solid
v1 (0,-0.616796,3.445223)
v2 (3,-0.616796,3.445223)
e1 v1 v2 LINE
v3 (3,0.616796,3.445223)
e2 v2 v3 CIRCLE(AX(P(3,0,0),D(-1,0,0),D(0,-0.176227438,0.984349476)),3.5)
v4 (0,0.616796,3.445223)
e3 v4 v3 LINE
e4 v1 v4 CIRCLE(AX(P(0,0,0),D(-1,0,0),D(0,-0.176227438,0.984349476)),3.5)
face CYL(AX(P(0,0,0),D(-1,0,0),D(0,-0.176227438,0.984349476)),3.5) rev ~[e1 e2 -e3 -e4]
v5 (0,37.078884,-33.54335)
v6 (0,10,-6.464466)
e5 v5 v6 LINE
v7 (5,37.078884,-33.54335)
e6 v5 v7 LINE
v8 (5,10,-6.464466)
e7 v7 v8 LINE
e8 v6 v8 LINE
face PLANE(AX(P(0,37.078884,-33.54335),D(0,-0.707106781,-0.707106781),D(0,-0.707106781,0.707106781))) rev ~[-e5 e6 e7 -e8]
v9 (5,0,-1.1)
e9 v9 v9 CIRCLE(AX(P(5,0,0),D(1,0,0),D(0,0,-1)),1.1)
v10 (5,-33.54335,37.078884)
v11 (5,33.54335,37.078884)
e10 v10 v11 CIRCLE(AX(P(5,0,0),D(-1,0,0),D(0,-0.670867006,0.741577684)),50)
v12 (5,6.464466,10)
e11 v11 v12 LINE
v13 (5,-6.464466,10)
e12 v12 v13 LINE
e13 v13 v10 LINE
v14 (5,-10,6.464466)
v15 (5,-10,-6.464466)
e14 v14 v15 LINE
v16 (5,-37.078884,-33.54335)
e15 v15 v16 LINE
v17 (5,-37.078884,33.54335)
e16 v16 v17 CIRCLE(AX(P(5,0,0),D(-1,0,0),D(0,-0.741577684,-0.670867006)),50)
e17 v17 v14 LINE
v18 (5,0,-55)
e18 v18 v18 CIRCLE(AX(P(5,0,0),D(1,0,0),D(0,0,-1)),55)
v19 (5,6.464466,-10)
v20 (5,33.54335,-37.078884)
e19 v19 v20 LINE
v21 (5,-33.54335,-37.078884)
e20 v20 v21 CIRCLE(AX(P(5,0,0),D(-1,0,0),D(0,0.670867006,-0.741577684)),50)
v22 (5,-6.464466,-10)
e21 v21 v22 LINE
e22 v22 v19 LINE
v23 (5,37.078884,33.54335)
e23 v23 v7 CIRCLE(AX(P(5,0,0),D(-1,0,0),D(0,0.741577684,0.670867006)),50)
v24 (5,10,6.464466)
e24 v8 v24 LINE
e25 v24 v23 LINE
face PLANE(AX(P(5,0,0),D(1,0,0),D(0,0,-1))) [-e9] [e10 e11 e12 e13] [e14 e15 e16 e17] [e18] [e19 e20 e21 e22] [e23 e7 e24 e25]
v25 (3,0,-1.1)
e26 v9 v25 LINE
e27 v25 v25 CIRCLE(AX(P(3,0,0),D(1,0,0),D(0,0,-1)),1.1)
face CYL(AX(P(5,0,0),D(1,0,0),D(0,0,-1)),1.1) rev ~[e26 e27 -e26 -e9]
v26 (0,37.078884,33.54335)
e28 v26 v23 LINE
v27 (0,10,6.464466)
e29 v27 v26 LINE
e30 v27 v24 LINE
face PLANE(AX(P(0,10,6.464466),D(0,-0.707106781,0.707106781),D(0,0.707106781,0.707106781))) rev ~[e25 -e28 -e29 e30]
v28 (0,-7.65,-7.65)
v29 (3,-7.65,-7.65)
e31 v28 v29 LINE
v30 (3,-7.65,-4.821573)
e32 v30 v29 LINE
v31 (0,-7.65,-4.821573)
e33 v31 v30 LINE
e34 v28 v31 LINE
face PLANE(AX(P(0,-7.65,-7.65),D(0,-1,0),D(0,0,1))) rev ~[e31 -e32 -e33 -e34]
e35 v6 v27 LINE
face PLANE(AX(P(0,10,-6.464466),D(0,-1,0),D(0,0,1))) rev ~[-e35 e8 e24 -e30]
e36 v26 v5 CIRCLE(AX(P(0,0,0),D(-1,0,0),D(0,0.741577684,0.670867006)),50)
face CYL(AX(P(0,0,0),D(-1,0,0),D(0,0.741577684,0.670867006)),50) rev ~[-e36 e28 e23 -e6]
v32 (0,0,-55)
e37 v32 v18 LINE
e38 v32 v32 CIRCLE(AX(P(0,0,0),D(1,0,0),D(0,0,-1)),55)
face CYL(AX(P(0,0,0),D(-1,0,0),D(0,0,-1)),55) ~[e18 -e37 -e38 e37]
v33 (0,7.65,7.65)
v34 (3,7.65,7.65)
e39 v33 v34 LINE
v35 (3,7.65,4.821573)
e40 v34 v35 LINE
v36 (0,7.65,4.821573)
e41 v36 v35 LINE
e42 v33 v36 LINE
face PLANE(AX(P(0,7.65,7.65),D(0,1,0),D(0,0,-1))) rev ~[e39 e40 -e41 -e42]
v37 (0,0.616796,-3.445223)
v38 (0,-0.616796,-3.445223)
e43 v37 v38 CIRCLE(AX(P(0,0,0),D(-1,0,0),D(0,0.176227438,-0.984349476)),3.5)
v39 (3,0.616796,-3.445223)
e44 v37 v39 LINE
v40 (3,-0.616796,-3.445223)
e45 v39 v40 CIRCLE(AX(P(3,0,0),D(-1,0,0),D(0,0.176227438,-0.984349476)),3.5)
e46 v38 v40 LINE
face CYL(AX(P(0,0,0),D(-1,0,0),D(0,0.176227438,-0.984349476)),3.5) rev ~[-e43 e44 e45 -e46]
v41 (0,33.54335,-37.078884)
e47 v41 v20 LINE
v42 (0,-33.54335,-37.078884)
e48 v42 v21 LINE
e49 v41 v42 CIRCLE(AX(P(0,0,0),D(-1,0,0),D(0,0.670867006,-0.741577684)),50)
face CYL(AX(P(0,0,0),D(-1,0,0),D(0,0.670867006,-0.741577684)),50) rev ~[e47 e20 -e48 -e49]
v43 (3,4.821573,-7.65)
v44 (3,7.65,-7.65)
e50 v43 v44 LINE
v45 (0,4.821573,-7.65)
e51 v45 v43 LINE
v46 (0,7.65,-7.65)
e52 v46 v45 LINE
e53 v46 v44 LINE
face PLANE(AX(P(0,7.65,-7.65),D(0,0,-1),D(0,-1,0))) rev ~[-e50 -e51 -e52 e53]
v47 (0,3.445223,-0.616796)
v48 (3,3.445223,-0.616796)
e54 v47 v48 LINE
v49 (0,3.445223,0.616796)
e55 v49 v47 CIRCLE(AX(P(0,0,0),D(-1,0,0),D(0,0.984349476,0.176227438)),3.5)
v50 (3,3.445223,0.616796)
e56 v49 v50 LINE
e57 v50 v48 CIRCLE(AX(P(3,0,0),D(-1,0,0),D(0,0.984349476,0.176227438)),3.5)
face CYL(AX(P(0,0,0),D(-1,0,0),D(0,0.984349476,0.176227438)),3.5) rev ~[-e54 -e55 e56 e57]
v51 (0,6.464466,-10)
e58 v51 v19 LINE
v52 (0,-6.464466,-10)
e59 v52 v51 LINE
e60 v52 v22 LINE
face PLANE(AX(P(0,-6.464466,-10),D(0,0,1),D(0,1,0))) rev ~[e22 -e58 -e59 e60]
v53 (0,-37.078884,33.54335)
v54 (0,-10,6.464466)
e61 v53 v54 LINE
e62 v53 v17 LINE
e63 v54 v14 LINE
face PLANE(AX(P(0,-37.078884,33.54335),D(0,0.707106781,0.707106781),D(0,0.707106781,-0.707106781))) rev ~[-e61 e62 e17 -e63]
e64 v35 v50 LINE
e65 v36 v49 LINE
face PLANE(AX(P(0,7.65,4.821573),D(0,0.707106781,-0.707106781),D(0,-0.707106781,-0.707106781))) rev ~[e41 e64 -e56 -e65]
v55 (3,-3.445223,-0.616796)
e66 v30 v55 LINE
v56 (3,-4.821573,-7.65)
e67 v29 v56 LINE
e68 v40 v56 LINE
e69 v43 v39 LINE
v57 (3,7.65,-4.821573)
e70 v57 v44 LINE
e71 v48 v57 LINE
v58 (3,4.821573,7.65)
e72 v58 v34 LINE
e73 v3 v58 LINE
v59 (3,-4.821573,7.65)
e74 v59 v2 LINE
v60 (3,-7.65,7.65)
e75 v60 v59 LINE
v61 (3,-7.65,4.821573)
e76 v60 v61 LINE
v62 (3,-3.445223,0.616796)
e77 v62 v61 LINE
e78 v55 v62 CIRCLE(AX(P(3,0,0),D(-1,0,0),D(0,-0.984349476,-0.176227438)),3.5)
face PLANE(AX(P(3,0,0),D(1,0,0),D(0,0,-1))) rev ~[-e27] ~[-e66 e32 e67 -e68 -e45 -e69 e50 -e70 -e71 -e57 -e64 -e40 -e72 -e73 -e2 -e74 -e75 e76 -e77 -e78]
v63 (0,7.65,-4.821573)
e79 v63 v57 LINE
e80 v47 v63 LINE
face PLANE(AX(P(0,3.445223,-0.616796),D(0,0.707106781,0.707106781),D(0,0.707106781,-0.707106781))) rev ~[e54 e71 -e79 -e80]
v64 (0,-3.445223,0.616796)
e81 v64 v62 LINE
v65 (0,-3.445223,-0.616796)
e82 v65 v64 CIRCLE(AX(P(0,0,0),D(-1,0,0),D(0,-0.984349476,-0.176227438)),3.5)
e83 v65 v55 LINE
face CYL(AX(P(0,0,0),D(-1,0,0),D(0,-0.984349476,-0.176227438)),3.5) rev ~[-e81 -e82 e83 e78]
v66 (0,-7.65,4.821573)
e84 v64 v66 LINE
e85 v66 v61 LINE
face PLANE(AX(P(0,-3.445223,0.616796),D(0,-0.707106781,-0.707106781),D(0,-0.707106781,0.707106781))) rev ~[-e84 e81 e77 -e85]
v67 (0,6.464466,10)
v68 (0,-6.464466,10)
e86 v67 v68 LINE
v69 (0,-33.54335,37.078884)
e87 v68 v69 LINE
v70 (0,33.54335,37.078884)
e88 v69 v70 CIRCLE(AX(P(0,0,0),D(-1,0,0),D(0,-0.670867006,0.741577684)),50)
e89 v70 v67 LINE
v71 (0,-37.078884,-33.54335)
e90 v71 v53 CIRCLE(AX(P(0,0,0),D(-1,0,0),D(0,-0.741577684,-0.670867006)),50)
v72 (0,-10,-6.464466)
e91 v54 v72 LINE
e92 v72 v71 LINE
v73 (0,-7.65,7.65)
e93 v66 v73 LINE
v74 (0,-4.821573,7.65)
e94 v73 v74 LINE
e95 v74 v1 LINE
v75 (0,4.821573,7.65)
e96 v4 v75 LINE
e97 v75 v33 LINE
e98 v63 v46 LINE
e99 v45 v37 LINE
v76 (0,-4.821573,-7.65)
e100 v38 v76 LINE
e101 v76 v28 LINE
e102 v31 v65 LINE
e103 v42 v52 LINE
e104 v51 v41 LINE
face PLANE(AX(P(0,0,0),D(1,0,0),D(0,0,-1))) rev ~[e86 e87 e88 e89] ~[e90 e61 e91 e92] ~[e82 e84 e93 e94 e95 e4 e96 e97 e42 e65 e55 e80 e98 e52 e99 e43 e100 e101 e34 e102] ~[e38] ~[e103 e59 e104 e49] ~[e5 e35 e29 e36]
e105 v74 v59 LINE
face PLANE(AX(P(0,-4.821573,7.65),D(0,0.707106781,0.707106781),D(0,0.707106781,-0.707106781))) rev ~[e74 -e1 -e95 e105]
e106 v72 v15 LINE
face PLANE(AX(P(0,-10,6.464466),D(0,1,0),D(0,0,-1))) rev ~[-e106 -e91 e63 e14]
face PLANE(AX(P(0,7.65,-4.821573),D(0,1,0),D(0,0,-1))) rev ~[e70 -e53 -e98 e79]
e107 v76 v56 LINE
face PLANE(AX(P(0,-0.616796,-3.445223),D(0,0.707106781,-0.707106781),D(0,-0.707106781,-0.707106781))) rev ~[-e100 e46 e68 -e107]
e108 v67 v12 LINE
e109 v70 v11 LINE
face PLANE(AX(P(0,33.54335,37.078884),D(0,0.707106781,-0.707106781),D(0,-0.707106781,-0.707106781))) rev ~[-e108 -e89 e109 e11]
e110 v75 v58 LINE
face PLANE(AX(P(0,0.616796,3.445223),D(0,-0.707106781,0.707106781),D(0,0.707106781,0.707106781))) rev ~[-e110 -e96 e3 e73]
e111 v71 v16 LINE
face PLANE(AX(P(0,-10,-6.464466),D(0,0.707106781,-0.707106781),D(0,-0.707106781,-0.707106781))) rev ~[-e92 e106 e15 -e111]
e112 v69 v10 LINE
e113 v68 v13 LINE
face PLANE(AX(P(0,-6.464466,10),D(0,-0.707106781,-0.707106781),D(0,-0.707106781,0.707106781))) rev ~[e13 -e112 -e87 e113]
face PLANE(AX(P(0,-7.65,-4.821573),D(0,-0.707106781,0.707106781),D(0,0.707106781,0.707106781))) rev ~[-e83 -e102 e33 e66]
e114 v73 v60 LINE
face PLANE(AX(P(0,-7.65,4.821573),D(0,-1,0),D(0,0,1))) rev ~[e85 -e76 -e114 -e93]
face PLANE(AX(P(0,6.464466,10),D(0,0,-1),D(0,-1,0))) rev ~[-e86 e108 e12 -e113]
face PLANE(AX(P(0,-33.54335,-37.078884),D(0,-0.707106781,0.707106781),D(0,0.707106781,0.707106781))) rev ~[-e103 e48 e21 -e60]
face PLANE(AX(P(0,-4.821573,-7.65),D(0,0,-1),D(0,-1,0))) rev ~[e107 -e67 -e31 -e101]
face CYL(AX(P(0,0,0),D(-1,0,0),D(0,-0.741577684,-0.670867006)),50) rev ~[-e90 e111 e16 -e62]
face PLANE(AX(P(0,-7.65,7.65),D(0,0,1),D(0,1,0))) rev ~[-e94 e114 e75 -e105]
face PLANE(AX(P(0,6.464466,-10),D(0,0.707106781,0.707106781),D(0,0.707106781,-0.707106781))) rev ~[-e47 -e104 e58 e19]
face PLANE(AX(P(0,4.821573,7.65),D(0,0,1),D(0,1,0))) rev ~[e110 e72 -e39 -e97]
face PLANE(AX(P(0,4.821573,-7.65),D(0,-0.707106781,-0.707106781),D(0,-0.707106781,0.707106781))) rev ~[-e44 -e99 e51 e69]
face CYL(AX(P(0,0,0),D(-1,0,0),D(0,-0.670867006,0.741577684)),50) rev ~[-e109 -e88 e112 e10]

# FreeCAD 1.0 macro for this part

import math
import FreeCAD as App
import Part
import Sketcher

V = App.Vector


def add_polygon(sketch, points):
    """Adds a closed chain of lines whose ends are joined by coincident constraints."""
    first, n = sketch.GeometryCount, len(points)
    for a, b in zip(points, points[1:] + points[:1]):
        sketch.addGeometry(Part.LineSegment(App.Vector(*a, 0), App.Vector(*b, 0)), False)
    for i in range(n):
        sketch.addConstraint(Sketcher.Constraint("Coincident", first + i, 2, first + (i + 1) % n, 1))

doc = App.newDocument("Part")
body = doc.addObject("PartDesign::Body", "Body")

# Sketch on YZ plane
sketch1 = body.newObject("Sketcher::SketchObject", "Sketch")
sketch1.AttachmentSupport = (doc.getObject("YZ_Plane"), [""])
sketch1.MapMode = "FlatFace"
sketch1.addGeometry([
    Part.Circle(V(0, 0, 0), V(0, 0, 1), 55),  # 0
    Part.ArcOfCircle(Part.Circle(V(0, 0, 0), V(0, 0, 1), 50), math.radians(48), math.radians(132)),  # 1
    Part.LineSegment(V(33.5, 37.1, 0), V(6.5, 10, 0)),  # 2
    Part.LineSegment(V(6.5, 10, 0), V(-6.5, 10, 0)),  # 3
    Part.LineSegment(V(-6.5, 10, 0), V(-33.5, 37.1, 0)),  # 4
    Part.ArcOfCircle(Part.Circle(V(0, 0, 0), V(0, 0, 1), 50), math.radians(138), math.radians(222)),  # 5
    Part.LineSegment(V(-37.1, 33.5, 0), V(-10, 6.5, 0)),  # 6
    Part.LineSegment(V(-10, 6.5, 0), V(-10, -6.5, 0)),  # 7
    Part.LineSegment(V(-10, -6.5, 0), V(-37.1, -33.5, 0)),  # 8
    Part.ArcOfCircle(Part.Circle(V(0, 0, 0), V(0, 0, 1), 3.5), math.radians(170), math.radians(190)),  # 9
    Part.LineSegment(V(-3.4, 0.6, 0), V(-7.7, 4.8, 0)),  # 10
    Part.LineSegment(V(-7.7, 4.8, 0), V(-7.7, 7.7, 0)),  # 11
    Part.LineSegment(V(-7.7, 7.7, 0), V(-4.8, 7.7, 0)),  # 12
    Part.LineSegment(V(-4.8, 7.7, 0), V(-0.6, 3.4, 0)),  # 13
    Part.ArcOfCircle(Part.Circle(V(0, 0, 0), V(0, 0, 1), 3.5), math.radians(80), math.radians(100)),  # 14
    Part.LineSegment(V(0.6, 3.4, 0), V(4.8, 7.7, 0)),  # 15
    Part.LineSegment(V(4.8, 7.7, 0), V(7.7, 7.7, 0)),  # 16
    Part.LineSegment(V(7.7, 7.7, 0), V(7.7, 4.8, 0)),  # 17
    Part.LineSegment(V(7.7, 4.8, 0), V(3.4, 0.6, 0)),  # 18
    Part.ArcOfCircle(Part.Circle(V(0, 0, 0), V(0, 0, 1), 3.5), math.radians(-10), math.radians(10)),  # 19
    Part.LineSegment(V(3.4, -0.6, 0), V(7.7, -4.8, 0)),  # 20
    Part.LineSegment(V(7.7, -4.8, 0), V(7.7, -7.7, 0)),  # 21
    Part.LineSegment(V(7.7, -7.7, 0), V(4.8, -7.7, 0)),  # 22
    Part.LineSegment(V(4.8, -7.7, 0), V(0.6, -3.4, 0)),  # 23
    Part.ArcOfCircle(Part.Circle(V(0, 0, 0), V(0, 0, 1), 3.5), math.radians(-100), math.radians(-80)),  # 24
    Part.LineSegment(V(-0.6, -3.4, 0), V(-4.8, -7.7, 0)),  # 25
    Part.LineSegment(V(-4.8, -7.7, 0), V(-7.7, -7.7, 0)),  # 26
    Part.LineSegment(V(-7.7, -7.7, 0), V(-7.7, -4.8, 0)),  # 27
    Part.LineSegment(V(-7.7, -4.8, 0), V(-3.4, -0.6, 0)),  # 28
    Part.LineSegment(V(-33.5, -37.1, 0), V(-6.5, -10, 0)),  # 29
    Part.LineSegment(V(-6.5, -10, 0), V(6.5, -10, 0)),  # 30
    Part.LineSegment(V(6.5, -10, 0), V(33.5, -37.1, 0)),  # 31
    Part.ArcOfCircle(Part.Circle(V(0, 0, 0), V(0, 0, 1), 50), math.radians(-132), math.radians(-48)),  # 32
    Part.LineSegment(V(37.1, -33.5, 0), V(10, -6.5, 0)),  # 33
    Part.LineSegment(V(10, -6.5, 0), V(10, 6.5, 0)),  # 34
    Part.LineSegment(V(10, 6.5, 0), V(37.1, 33.5, 0)),  # 35
    Part.ArcOfCircle(Part.Circle(V(0, 0, 0), V(0, 0, 1), 50), math.radians(-42), math.radians(42)),  # 36
], False)
sketch1.addConstraint([
    Sketcher.Constraint("Coincident", 1, 1, 2, 1),
    Sketcher.Constraint("Coincident", 2, 2, 3, 1),
    Sketcher.Constraint("Coincident", 3, 2, 4, 1),
    Sketcher.Constraint("Coincident", 4, 2, 1, 2),
    Sketcher.Constraint("Coincident", 5, 1, 6, 1),
    Sketcher.Constraint("Coincident", 6, 2, 7, 1),
    Sketcher.Constraint("Coincident", 7, 2, 8, 1),
    Sketcher.Constraint("Coincident", 8, 2, 5, 2),
    Sketcher.Constraint("Coincident", 9, 1, 10, 1),
    Sketcher.Constraint("Coincident", 10, 2, 11, 1),
    Sketcher.Constraint("Coincident", 11, 2, 12, 1),
    Sketcher.Constraint("Coincident", 12, 2, 13, 1),
    Sketcher.Constraint("Coincident", 13, 2, 14, 2),
    Sketcher.Constraint("Coincident", 14, 1, 15, 1),
    Sketcher.Constraint("Coincident", 15, 2, 16, 1),
    Sketcher.Constraint("Coincident", 16, 2, 17, 1),
    Sketcher.Constraint("Coincident", 17, 2, 18, 1),
    Sketcher.Constraint("Coincident", 18, 2, 19, 2),
    Sketcher.Constraint("Coincident", 19, 1, 20, 1),
    Sketcher.Constraint("Coincident", 20, 2, 21, 1),
    Sketcher.Constraint("Coincident", 21, 2, 22, 1),
    Sketcher.Constraint("Coincident", 22, 2, 23, 1),
    Sketcher.Constraint("Coincident", 23, 2, 24, 2),
    Sketcher.Constraint("Coincident", 24, 1, 25, 1),
    Sketcher.Constraint("Coincident", 25, 2, 26, 1),
    Sketcher.Constraint("Coincident", 26, 2, 27, 1),
    Sketcher.Constraint("Coincident", 27, 2, 28, 1),
    Sketcher.Constraint("Coincident", 28, 2, 9, 2),
    Sketcher.Constraint("Coincident", 29, 2, 30, 1),
    Sketcher.Constraint("Coincident", 30, 2, 31, 1),
    Sketcher.Constraint("Coincident", 31, 2, 32, 2),
    Sketcher.Constraint("Coincident", 32, 1, 29, 1),
    Sketcher.Constraint("Coincident", 33, 2, 34, 1),
    Sketcher.Constraint("Coincident", 34, 2, 35, 1),
    Sketcher.Constraint("Coincident", 35, 2, 36, 2),
    Sketcher.Constraint("Coincident", 36, 1, 33, 1),
    Sketcher.Constraint("Horizontal", 3),
    Sketcher.Constraint("Vertical", 7),
    Sketcher.Constraint("Vertical", 11),
    Sketcher.Constraint("Horizontal", 12),
    Sketcher.Constraint("Horizontal", 16),
    Sketcher.Constraint("Vertical", 17),
    Sketcher.Constraint("Vertical", 21),
    Sketcher.Constraint("Horizontal", 22),
    Sketcher.Constraint("Horizontal", 26),
    Sketcher.Constraint("Vertical", 27),
    Sketcher.Constraint("Horizontal", 30),
    Sketcher.Constraint("Vertical", 34),
    Sketcher.Constraint("Coincident", 0, 3, -1, 1),
    Sketcher.Constraint("Coincident", 1, 3, -1, 1),
    Sketcher.Constraint("Coincident", 5, 3, -1, 1),
    Sketcher.Constraint("Coincident", 9, 3, -1, 1),
    Sketcher.Constraint("Coincident", 14, 3, -1, 1),
    Sketcher.Constraint("Coincident", 19, 3, -1, 1),
    Sketcher.Constraint("Coincident", 24, 3, -1, 1),
    Sketcher.Constraint("Coincident", 32, 3, -1, 1),
    Sketcher.Constraint("Coincident", 36, 3, -1, 1),
    Sketcher.Constraint("Equal", 1, 5),
    Sketcher.Constraint("Equal", 9, 14),
    Sketcher.Constraint("Equal", 14, 19),
    Sketcher.Constraint("Equal", 19, 24),
    Sketcher.Constraint("Equal", 5, 32),
    Sketcher.Constraint("Equal", 32, 36),
    Sketcher.Constraint("Symmetric", 10, 2, 20, 2, -1, 1),
    Sketcher.Constraint("Symmetric", 12, 2, 22, 2, -1, 1),
    Sketcher.Constraint("Symmetric", 15, 2, 25, 2, -1, 1),
    Sketcher.Constraint("Symmetric", 17, 2, 27, 2, -1, 1),
    Sketcher.Constraint("Symmetric", 2, 2, 29, 2, -1, 1),
    Sketcher.Constraint("Symmetric", 6, 2, 33, 2, -1, 1),
    Sketcher.Constraint("Symmetric", 12, 2, 15, 2, -2),
    Sketcher.Constraint("Symmetric", 10, 2, 17, 2, -2),
    Sketcher.Constraint("Perpendicular", 2, 4),
    Sketcher.Constraint("Parallel", 4, 6),
    Sketcher.Constraint("Perpendicular", 6, 8),
    Sketcher.Constraint("Perpendicular", 8, 10),
    Sketcher.Constraint("Parallel", 10, 13),
    Sketcher.Constraint("Perpendicular", 13, 15),
    Sketcher.Constraint("Parallel", 15, 18),
    Sketcher.Constraint("Perpendicular", 18, 20),
    Sketcher.Constraint("Parallel", 20, 23),
    Sketcher.Constraint("Perpendicular", 23, 25),
    Sketcher.Constraint("Parallel", 25, 28),
    Sketcher.Constraint("Parallel", 28, 29),
    Sketcher.Constraint("Perpendicular", 29, 31),
    Sketcher.Constraint("Parallel", 31, 33),
    Sketcher.Constraint("Perpendicular", 33, 35),
    Sketcher.Constraint("Horizontal", 1, 1, 4, 2),
    Sketcher.Constraint("Horizontal", 13, 2, 14, 1),
    Sketcher.Constraint("Horizontal", 31, 2, 32, 1),
    Sketcher.Constraint("Horizontal", 7, 2, 33, 2),
    Sketcher.Constraint("Horizontal", 6, 2, 34, 2),
    Sketcher.Constraint("Equal", 30, 7),
    Sketcher.Constraint("Equal", 26, 11),
    Sketcher.Constraint("Equal", 4, 6),
    Sketcher.Constraint("Equal", 10, 13),
    Sketcher.Constraint("Diameter", 0, 110.0),
    Sketcher.Constraint("Radius", 1, 50.0),
    Sketcher.Constraint("Radius", 9, 3.5),
    Sketcher.Constraint("DistanceY", -1, 1, 2, 2, 10.0),
    Sketcher.Constraint("DistanceX", 10, 2, -1, 1, 7.65),
    Sketcher.Constraint("DistanceX", 3, 2, 3, 1, 12.928932),
    Sketcher.Constraint("DistanceX", 12, 1, 12, 2, 2.828427),
])
pad1 = body.newObject("PartDesign::Pad", "Pad")
pad1.Profile = sketch1
pad1.Length = 5

# Sketch on YZ plane
sketch2 = body.newObject("Sketcher::SketchObject", "Sketch001")
sketch2.AttachmentSupport = (doc.getObject("YZ_Plane"), [""])
sketch2.MapMode = "FlatFace"
sketch2.AttachmentOffset = App.Placement(V(0, 0, 5), App.Rotation())
add_polygon(sketch2, [(7.7, 7.7), (-7.7, 7.7), (-7.7, -7.7), (7.7, -7.7)])  # lines 0-3
sketch2.addGeometry(Part.Circle(V(0, 0, 0), V(0, 0, 1), 1.1), False)  # 4
sketch2.addConstraint([
    Sketcher.Constraint("Horizontal", 0),
    Sketcher.Constraint("Vertical", 1),
    Sketcher.Constraint("Horizontal", 2),
    Sketcher.Constraint("Vertical", 3),
    Sketcher.Constraint("Coincident", 4, 3, -1, 1),
    Sketcher.Constraint("Symmetric", 0, 2, 2, 2, -1, 1),
    Sketcher.Constraint("Equal", 2, 1),
    Sketcher.Constraint("Diameter", 4, 2.2),
    Sketcher.Constraint("DistanceX", 0, 2, 0, 1, 15.3),
])
pad2 = body.newObject("PartDesign::Pad", "Pad001")
pad2.Profile = sketch2
pad2.Length = 2
pad2.Reversed = True

doc.recompute()
